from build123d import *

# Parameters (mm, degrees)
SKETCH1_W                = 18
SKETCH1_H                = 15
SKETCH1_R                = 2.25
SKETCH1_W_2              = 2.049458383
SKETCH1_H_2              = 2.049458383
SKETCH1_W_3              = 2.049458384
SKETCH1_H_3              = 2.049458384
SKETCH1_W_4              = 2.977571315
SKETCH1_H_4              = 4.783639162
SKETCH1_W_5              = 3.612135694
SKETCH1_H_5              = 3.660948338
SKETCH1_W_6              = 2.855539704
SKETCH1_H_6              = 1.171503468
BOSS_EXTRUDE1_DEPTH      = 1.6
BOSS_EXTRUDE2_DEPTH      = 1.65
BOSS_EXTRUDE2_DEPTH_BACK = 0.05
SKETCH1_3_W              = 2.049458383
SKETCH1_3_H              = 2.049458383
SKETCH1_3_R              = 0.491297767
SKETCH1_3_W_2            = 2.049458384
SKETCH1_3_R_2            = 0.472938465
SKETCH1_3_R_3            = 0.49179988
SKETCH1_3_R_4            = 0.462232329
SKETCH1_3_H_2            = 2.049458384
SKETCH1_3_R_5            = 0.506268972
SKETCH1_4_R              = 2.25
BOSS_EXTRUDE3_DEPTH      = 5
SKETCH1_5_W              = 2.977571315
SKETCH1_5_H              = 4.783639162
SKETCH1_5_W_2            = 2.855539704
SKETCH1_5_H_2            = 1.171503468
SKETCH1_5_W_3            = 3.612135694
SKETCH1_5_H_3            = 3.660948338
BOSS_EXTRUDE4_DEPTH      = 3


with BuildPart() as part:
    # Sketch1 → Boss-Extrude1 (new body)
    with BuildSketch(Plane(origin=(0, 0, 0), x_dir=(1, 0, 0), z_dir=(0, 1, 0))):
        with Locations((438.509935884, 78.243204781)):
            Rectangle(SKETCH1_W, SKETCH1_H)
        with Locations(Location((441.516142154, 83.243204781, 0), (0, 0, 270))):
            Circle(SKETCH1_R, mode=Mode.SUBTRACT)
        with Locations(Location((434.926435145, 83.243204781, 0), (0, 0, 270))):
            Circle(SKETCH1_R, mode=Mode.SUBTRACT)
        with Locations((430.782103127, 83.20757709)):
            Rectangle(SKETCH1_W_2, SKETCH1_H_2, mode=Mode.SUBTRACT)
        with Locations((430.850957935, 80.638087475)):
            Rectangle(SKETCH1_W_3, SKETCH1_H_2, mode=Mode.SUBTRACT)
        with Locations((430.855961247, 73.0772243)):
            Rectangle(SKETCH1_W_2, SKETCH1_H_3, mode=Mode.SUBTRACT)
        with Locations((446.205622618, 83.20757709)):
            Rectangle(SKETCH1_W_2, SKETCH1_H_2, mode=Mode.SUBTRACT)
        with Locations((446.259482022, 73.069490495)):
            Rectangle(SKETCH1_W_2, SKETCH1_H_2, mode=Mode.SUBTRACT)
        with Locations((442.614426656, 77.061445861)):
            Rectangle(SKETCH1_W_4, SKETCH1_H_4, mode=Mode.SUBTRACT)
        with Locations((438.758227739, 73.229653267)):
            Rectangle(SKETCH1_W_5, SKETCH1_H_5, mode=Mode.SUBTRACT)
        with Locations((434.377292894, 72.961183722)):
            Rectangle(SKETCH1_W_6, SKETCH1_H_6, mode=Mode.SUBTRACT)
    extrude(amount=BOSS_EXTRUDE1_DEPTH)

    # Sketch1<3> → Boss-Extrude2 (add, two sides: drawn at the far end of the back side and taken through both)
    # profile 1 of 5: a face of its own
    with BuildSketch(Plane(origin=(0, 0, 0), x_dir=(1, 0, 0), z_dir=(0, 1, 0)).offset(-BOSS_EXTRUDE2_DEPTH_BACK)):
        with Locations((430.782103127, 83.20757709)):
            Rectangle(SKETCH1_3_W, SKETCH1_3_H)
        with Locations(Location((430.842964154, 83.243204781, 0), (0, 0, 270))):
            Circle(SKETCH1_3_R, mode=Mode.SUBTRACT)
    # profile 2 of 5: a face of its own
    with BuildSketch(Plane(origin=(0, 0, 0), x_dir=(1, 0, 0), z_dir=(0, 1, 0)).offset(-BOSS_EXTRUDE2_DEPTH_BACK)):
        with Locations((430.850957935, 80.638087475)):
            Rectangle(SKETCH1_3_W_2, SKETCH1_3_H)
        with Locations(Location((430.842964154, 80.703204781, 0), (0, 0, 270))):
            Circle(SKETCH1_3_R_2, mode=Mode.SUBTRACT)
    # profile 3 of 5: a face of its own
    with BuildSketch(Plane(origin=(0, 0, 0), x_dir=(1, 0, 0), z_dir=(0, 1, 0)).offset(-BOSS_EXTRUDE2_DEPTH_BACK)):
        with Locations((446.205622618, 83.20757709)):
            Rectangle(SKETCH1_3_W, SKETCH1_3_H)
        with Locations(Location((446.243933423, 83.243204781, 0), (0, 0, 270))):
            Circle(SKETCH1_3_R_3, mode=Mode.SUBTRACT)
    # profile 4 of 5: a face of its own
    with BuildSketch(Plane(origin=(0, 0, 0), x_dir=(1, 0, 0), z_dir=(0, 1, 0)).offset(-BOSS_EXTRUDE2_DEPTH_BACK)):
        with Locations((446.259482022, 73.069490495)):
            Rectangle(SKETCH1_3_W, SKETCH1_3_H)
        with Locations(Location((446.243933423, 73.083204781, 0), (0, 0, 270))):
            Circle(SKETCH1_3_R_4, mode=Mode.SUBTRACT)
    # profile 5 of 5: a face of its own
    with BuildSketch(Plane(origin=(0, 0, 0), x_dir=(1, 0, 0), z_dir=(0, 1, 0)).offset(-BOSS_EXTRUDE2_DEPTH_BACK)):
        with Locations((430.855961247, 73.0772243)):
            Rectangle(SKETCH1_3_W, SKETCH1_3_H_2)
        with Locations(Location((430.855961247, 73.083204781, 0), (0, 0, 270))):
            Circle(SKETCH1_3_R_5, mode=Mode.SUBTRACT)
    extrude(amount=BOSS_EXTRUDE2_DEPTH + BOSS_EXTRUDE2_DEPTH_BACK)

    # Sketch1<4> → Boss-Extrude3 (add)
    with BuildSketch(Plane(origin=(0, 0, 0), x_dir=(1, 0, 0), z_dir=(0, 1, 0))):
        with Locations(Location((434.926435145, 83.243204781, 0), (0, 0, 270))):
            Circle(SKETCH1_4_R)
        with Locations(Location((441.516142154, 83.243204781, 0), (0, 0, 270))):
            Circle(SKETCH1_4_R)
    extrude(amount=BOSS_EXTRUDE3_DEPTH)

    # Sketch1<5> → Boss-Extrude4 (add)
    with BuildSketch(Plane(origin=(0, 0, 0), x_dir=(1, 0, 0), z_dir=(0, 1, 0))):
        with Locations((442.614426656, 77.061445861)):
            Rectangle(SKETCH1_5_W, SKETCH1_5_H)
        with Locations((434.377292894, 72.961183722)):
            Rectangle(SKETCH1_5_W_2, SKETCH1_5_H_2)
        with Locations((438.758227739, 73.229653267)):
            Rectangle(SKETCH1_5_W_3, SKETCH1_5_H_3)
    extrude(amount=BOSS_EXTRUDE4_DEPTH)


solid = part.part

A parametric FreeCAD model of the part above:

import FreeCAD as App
import Part
import Sketcher

V = App.Vector
Q = App.Units.Quantity


def add_polygon(sketch, points):
    """Adds a closed chain of lines whose ends are joined by coincident constraints."""
    first, n = sketch.GeometryCount, len(points)
    for a, b in zip(points, points[1:] + points[:1]):
        sketch.addGeometry(Part.LineSegment(App.Vector(*a, 0), App.Vector(*b, 0)), False)
    for i in range(n):
        sketch.addConstraint(Sketcher.Constraint("Coincident", first + i, 2, first + (i + 1) % n, 1))

doc = App.newDocument("Part")
body = doc.addObject("PartDesign::Body", "Body")

# Sketch on XZ plane
sketch1 = body.newObject("Sketcher::SketchObject", "Sketch")
sketch1.AttachmentSupport = (doc.getObject("XZ_Plane"), [""])
sketch1.MapMode = "FlatFace"
add_polygon(sketch1, [(429.509936, -85.743205), (429.509936, -70.743205), (447.509936, -70.743205), (447.509936, -85.743205)])  # lines 0-3
add_polygon(sketch1, [(431.88069, -72.052495), (429.831232, -72.052495), (429.831232, -74.101953), (431.88069, -74.101953)])  # lines 4-7
add_polygon(sketch1, [(435.805063, -72.375432), (432.949523, -72.375432), (432.949523, -73.546935), (435.805063, -73.546935)])  # lines 8-11
add_polygon(sketch1, [(440.564296, -71.399179), (436.95216, -71.399179), (436.95216, -75.060127), (440.564296, -75.060127)])  # lines 12-15
add_polygon(sketch1, [(447.284211, -72.044761), (445.234753, -72.044761), (445.234753, -74.09422), (447.284211, -74.09422)])  # lines 16-19
add_polygon(sketch1, [(444.103212, -74.669626), (441.125641, -74.669626), (441.125641, -79.453265), (444.103212, -79.453265)])  # lines 20-23
add_polygon(sketch1, [(431.875687, -79.613358), (429.826229, -79.613358), (429.826229, -81.662817), (431.875687, -81.662817)])  # lines 24-27
add_polygon(sketch1, [(431.806832, -82.182848), (429.757374, -82.182848), (429.757374, -84.232306), (431.806832, -84.232306)])  # lines 28-31
sketch1.addGeometry(Part.Circle(V(434.926435, -83.243205, 0), V(0, 0, 1), 2.25), False)  # 32
sketch1.addGeometry(Part.Circle(V(441.516142, -83.243205, 0), V(0, 0, 1), 2.25), False)  # 33
add_polygon(sketch1, [(447.230352, -82.182848), (445.180893, -82.182848), (445.180893, -84.232306), (447.230352, -84.232306)])  # lines 34-37
sketch1.addConstraint([
    Sketcher.Constraint("Vertical", 0),
    Sketcher.Constraint("Horizontal", 1),
    Sketcher.Constraint("Vertical", 2),
    Sketcher.Constraint("Horizontal", 3),
    Sketcher.Constraint("Horizontal", 4),
    Sketcher.Constraint("Vertical", 5),
    Sketcher.Constraint("Horizontal", 6),
    Sketcher.Constraint("Vertical", 7),
    Sketcher.Constraint("Horizontal", 8),
    Sketcher.Constraint("Vertical", 9),
    Sketcher.Constraint("Horizontal", 10),
    Sketcher.Constraint("Vertical", 11),
    Sketcher.Constraint("Horizontal", 12),
    Sketcher.Constraint("Vertical", 13),
    Sketcher.Constraint("Horizontal", 14),
    Sketcher.Constraint("Vertical", 15),
    Sketcher.Constraint("Horizontal", 16),
    Sketcher.Constraint("Vertical", 17),
    Sketcher.Constraint("Horizontal", 18),
    Sketcher.Constraint("Vertical", 19),
    Sketcher.Constraint("Horizontal", 20),
    Sketcher.Constraint("Vertical", 21),
    Sketcher.Constraint("Horizontal", 22),
    Sketcher.Constraint("Vertical", 23),
    Sketcher.Constraint("Horizontal", 24),
    Sketcher.Constraint("Vertical", 25),
    Sketcher.Constraint("Horizontal", 26),
    Sketcher.Constraint("Vertical", 27),
    Sketcher.Constraint("Horizontal", 28),
    Sketcher.Constraint("Vertical", 29),
    Sketcher.Constraint("Horizontal", 30),
    Sketcher.Constraint("Vertical", 31),
    Sketcher.Constraint("Horizontal", 34),
    Sketcher.Constraint("Vertical", 35),
    Sketcher.Constraint("Horizontal", 36),
    Sketcher.Constraint("Vertical", 37),
    Sketcher.Constraint("Equal", 32, 33),
    Sketcher.Constraint("Horizontal", 32, 3, 33, 3),
    Sketcher.Constraint("Horizontal", 31, 2, 34, 2),
    Sketcher.Constraint("Horizontal", 30, 2, 35, 2),
    Sketcher.Constraint("Equal", 6, 16),
    Sketcher.Constraint("Equal", 18, 24),
    Sketcher.Constraint("Equal", 26, 28),
    Sketcher.Constraint("Equal", 30, 34),
    Sketcher.Constraint("Equal", 36, 5),
    Sketcher.Constraint("Equal", 7, 17),
    Sketcher.Constraint("Equal", 19, 25),
    Sketcher.Constraint("Equal", 27, 29),
    Sketcher.Constraint("Diameter", 32, Q("4.5 mm")),
    Sketcher.Constraint("DistanceX", 1, 1, 1, 2, Q("18 mm")),
    Sketcher.Constraint("DistanceY", 0, 1, 0, 2, Q("15 mm")),
    Sketcher.Constraint("DistanceY", 32, 3, 0, 2, Q("12.5 mm")),
    Sketcher.Constraint("DistanceX", 23, 2, 18, 2, Q("3.180999 mm")),
    Sketcher.Constraint("DistanceX", 4, 2, 4, 1, Q("2.049458 mm")),
    Sketcher.Constraint("DistanceX", 8, 2, 8, 1, Q("2.85554 mm")),
    Sketcher.Constraint("DistanceX", 20, 2, 20, 1, Q("2.977571 mm")),
    Sketcher.Constraint("DistanceY", 13, 2, 13, 1, Q("3.660948 mm")),
    Sketcher.Constraint("DistanceY", 21, 2, 21, 1, Q("4.783639 mm")),
    Sketcher.Constraint("DistanceX", 0, 2, 32, 3, Q("5.416499 mm")),
    Sketcher.Constraint("DistanceY", 14, 2, 20, 2, Q("0.390501 mm")),
    Sketcher.Constraint("DistanceX", 21, 2, 33, 3, Q("0.390501 mm")),
    Sketcher.Constraint("DistanceY", 3, 2, 29, 2, Q("1.510898 mm")),
    Sketcher.Constraint("DistanceX", 12, 2, 12, 1, Q("3.612136 mm")),
    Sketcher.Constraint("DistanceY", 9, 2, 9, 1, Q("1.171503 mm")),
    Sketcher.Constraint("DistanceX", -1, 1, 6, 2, Q("431.88069 mm")),
    Sketcher.Constraint("DistanceY", 8, 2, -1, 1, Q("72.375432 mm")),
    Sketcher.Constraint("DistanceX", -1, 1, 12, 2, Q("436.95216 mm")),
    Sketcher.Constraint("DistanceY", 12, 2, -1, 1, Q("71.399179 mm")),
    Sketcher.Constraint("DistanceY", 16, 2, -1, 1, Q("72.044761 mm")),
    Sketcher.Constraint("DistanceX", -1, 1, 18, 2, Q("447.284211 mm")),
    Sketcher.Constraint("DistanceX", -1, 1, 24, 2, Q("429.826229 mm")),
    Sketcher.Constraint("DistanceY", 24, 2, -1, 1, Q("79.613358 mm")),
    Sketcher.Constraint("DistanceX", -1, 1, 36, 2, Q("447.230352 mm")),
    Sketcher.Constraint("DistanceY", 4, 2, 0, 2, Q("1.30929 mm")),
    Sketcher.Constraint("DistanceY", 6, 2, 8, 2, Q("1.726522 mm")),
    Sketcher.Constraint("DistanceX", 4, 2, 8, 2, Q("3.118291 mm")),
    Sketcher.Constraint("DistanceX", 26, 2, 32, 3, Q("3.050748 mm")),
    Sketcher.Constraint("DistanceX", 3, 2, 28, 2, Q("0.247438 mm")),
])
pad1 = body.newObject("PartDesign::Pad", "Pad")
pad1.Profile = sketch1
pad1.Length = 1.6
pad1.Reversed = True

# Sketch on XZ plane
sketch2 = body.newObject("Sketcher::SketchObject", "Sketch001")
sketch2.AttachmentSupport = (doc.getObject("XZ_Plane"), [""])
sketch2.MapMode = "FlatFace"
add_polygon(sketch2, [(429.757374, -84.232306), (429.757374, -82.182848), (431.806832, -82.182848), (431.806832, -84.232306)])  # lines 0-3
sketch2.addGeometry(Part.Circle(V(430.842964, -83.243205, 0), V(0, 0, 1), 0.491298), False)  # 4
add_polygon(sketch2, [(429.826229, -81.662817), (429.826229, -79.613358), (431.875687, -79.613358), (431.875687, -81.662817)])  # lines 5-8
sketch2.addGeometry(Part.Circle(V(430.842964, -80.703205, 0), V(0, 0, 1), 0.472938), False)  # 9
add_polygon(sketch2, [(445.180893, -84.232306), (445.180893, -82.182848), (447.230352, -82.182848), (447.230352, -84.232306)])  # lines 10-13
sketch2.addGeometry(Part.Circle(V(446.243933, -83.243205, 0), V(0, 0, 1), 0.4918), False)  # 14
add_polygon(sketch2, [(445.234753, -74.09422), (445.234753, -72.044761), (447.284211, -72.044761), (447.284211, -74.09422)])  # lines 15-18
sketch2.addGeometry(Part.Circle(V(446.243933, -73.083205, 0), V(0, 0, 1), 0.462232), False)  # 19
add_polygon(sketch2, [(429.831232, -74.101953), (429.831232, -72.052495), (431.88069, -72.052495), (431.88069, -74.101953)])  # lines 20-23
sketch2.addGeometry(Part.Circle(V(430.855961, -73.083205, 0), V(0, 0, 1), 0.506269), False)  # 24
sketch2.addConstraint([
    Sketcher.Constraint("Vertical", 0),
    Sketcher.Constraint("Horizontal", 1),
    Sketcher.Constraint("Vertical", 2),
    Sketcher.Constraint("Horizontal", 3),
    Sketcher.Constraint("Vertical", 5),
    Sketcher.Constraint("Horizontal", 6),
    Sketcher.Constraint("Vertical", 7),
    Sketcher.Constraint("Horizontal", 8),
    Sketcher.Constraint("Vertical", 10),
    Sketcher.Constraint("Horizontal", 11),
    Sketcher.Constraint("Vertical", 12),
    Sketcher.Constraint("Horizontal", 13),
    Sketcher.Constraint("Vertical", 15),
    Sketcher.Constraint("Horizontal", 16),
    Sketcher.Constraint("Vertical", 17),
    Sketcher.Constraint("Horizontal", 18),
    Sketcher.Constraint("Vertical", 20),
    Sketcher.Constraint("Horizontal", 21),
    Sketcher.Constraint("Vertical", 22),
    Sketcher.Constraint("Horizontal", 23),
    Sketcher.Constraint("Horizontal", 4, 3, 14, 3),
    Sketcher.Constraint("Horizontal", 19, 3, 24, 3),
    Sketcher.Constraint("Horizontal", 1, 2, 10, 2),
    Sketcher.Constraint("Horizontal", 3, 2, 12, 2),
    Sketcher.Constraint("Vertical", 4, 3, 9, 3),
    Sketcher.Constraint("Vertical", 14, 3, 19, 3),
    Sketcher.Constraint("Equal", 3, 6),
    Sketcher.Constraint("Equal", 8, 11),
    Sketcher.Constraint("Equal", 13, 16),
    Sketcher.Constraint("Equal", 18, 21),
    Sketcher.Constraint("Equal", 23, 0),
    Sketcher.Constraint("Equal", 2, 5),
    Sketcher.Constraint("Equal", 12, 15),
    Sketcher.Constraint("Equal", 17, 20),
    Sketcher.Constraint("Diameter", 14, Q("0.9836 mm")),
    Sketcher.Constraint("DistanceY", 4, 3, 9, 3, Q("2.54 mm")),
    Sketcher.Constraint("DistanceY", 14, 3, 19, 3, Q("10.16 mm")),
    Sketcher.Constraint("Diameter", 4, Q("0.982596 mm")),
    Sketcher.Constraint("Diameter", 9, Q("0.945877 mm")),
    Sketcher.Constraint("Diameter", 19, Q("0.924465 mm")),
    Sketcher.Constraint("Diameter", 24, Q("1.012538 mm")),
    Sketcher.Constraint("DistanceX", 1, 1, 1, 2, Q("2.049458 mm")),
    Sketcher.Constraint("DistanceX", 1, 2, 14, 3, Q("14.437101 mm")),
    Sketcher.Constraint("DistanceY", 2, 2, 4, 3, Q("0.989102 mm")),
    Sketcher.Constraint("DistanceX", 15, 2, 11, 2, Q("1.995599 mm")),
    Sketcher.Constraint("DistanceX", -1, 1, 24, 3, Q("430.855961 mm")),
    Sketcher.Constraint("DistanceX", -1, 1, 5, 2, Q("429.826229 mm")),
    Sketcher.Constraint("DistanceY", 5, 2, -1, 1, Q("79.613358 mm")),
    Sketcher.Constraint("DistanceX", -1, 1, 11, 2, Q("447.230352 mm")),
    Sketcher.Constraint("DistanceY", 15, 2, -1, 1, Q("72.044761 mm")),
    Sketcher.Constraint("DistanceX", -1, 1, 21, 2, Q("431.88069 mm")),
    Sketcher.Constraint("DistanceX", 4, 3, 14, 3, Q("15.400969 mm")),
    Sketcher.Constraint("DistanceX", 24, 3, 1, 2, Q("0.950871 mm")),
    Sketcher.Constraint("DistanceY", 0, 2, 5, 2, Q("2.56949 mm")),
    Sketcher.Constraint("DistanceY", 24, 3, 20, 2, Q("1.03071 mm")),
])
pad2 = body.newObject("PartDesign::Pad", "Pad001")
pad2.Profile = sketch2
pad2.Type = "TwoLengths"
pad2.Length = 1.65
pad2.Length2 = 0.05
pad2.Reversed = True

# Sketch on XZ plane
sketch3 = body.newObject("Sketcher::SketchObject", "Sketch002")
sketch3.AttachmentSupport = (doc.getObject("XZ_Plane"), [""])
sketch3.MapMode = "FlatFace"
sketch3.addGeometry([
    Part.Circle(V(434.926435, -83.243205, 0), V(0, 0, 1), 2.25),
    Part.Circle(V(441.516142, -83.243205, 0), V(0, 0, 1), 2.25),
], False)
sketch3.addConstraint([
    Sketcher.Constraint("Equal", 0, 1),
    Sketcher.Constraint("Horizontal", 0, 3, 1, 3),
    Sketcher.Constraint("Diameter", 0, Q("4.5 mm")),
    Sketcher.Constraint("DistanceX", -1, 1, 0, 3, Q("434.926435 mm")),
    Sketcher.Constraint("DistanceY", 0, 3, -1, 1, Q("83.243205 mm")),
    Sketcher.Constraint("DistanceX", -1, 1, 1, 3, Q("441.516142 mm")),
])
pad3 = body.newObject("PartDesign::Pad", "Pad002")
pad3.Profile = sketch3
pad3.Length = 5
pad3.Reversed = True

# Sketch on XZ plane
sketch4 = body.newObject("Sketcher::SketchObject", "Sketch003")
sketch4.AttachmentSupport = (doc.getObject("XZ_Plane"), [""])
sketch4.MapMode = "FlatFace"
add_polygon(sketch4, [(441.125641, -79.453265), (441.125641, -74.669626), (444.103212, -74.669626), (444.103212, -79.453265)])  # lines 0-3
add_polygon(sketch4, [(432.949523, -73.546935), (432.949523, -72.375432), (435.805063, -72.375432), (435.805063, -73.546935)])  # lines 4-7
add_polygon(sketch4, [(436.95216, -75.060127), (436.95216, -71.399179), (440.564296, -71.399179), (440.564296, -75.060127)])  # lines 8-11
sketch4.addConstraint([
    Sketcher.Constraint("Vertical", 0),
    Sketcher.Constraint("Horizontal", 1),
    Sketcher.Constraint("Vertical", 2),
    Sketcher.Constraint("Horizontal", 3),
    Sketcher.Constraint("Vertical", 4),
    Sketcher.Constraint("Horizontal", 5),
    Sketcher.Constraint("Vertical", 6),
    Sketcher.Constraint("Horizontal", 7),
    Sketcher.Constraint("Vertical", 8),
    Sketcher.Constraint("Horizontal", 9),
    Sketcher.Constraint("Vertical", 10),
    Sketcher.Constraint("Horizontal", 11),
    Sketcher.Constraint("DistanceX", 1, 1, 1, 2, Q("2.977571 mm")),
    Sketcher.Constraint("DistanceX", 5, 1, 5, 2, Q("2.85554 mm")),
    Sketcher.Constraint("DistanceY", 0, 1, 0, 2, Q("4.783639 mm")),
    Sketcher.Constraint("DistanceY", 8, 1, 8, 2, Q("3.660948 mm")),
    Sketcher.Constraint("DistanceY", 10, 2, 0, 2, Q("0.390501 mm")),
    Sketcher.Constraint("DistanceX", 9, 1, 9, 2, Q("3.612136 mm")),
    Sketcher.Constraint("DistanceY", 4, 1, 4, 2, Q("1.171503 mm")),
    Sketcher.Constraint("DistanceX", -1, 1, 0, 2, Q("441.125641 mm")),
    Sketcher.Constraint("DistanceY", 4, 2, -1, 1, Q("72.375432 mm")),
    Sketcher.Constraint("DistanceX", -1, 1, 8, 2, Q("436.95216 mm")),
    Sketcher.Constraint("DistanceY", 8, 2, -1, 1, Q("71.399179 mm")),
    Sketcher.Constraint("DistanceX", 4, 2, 1, 2, Q("11.153689 mm")),
])
pad4 = body.newObject("PartDesign::Pad", "Pad003")
pad4.Profile = sketch4
pad4.Length = 3
pad4.Reversed = True

doc.recompute()
